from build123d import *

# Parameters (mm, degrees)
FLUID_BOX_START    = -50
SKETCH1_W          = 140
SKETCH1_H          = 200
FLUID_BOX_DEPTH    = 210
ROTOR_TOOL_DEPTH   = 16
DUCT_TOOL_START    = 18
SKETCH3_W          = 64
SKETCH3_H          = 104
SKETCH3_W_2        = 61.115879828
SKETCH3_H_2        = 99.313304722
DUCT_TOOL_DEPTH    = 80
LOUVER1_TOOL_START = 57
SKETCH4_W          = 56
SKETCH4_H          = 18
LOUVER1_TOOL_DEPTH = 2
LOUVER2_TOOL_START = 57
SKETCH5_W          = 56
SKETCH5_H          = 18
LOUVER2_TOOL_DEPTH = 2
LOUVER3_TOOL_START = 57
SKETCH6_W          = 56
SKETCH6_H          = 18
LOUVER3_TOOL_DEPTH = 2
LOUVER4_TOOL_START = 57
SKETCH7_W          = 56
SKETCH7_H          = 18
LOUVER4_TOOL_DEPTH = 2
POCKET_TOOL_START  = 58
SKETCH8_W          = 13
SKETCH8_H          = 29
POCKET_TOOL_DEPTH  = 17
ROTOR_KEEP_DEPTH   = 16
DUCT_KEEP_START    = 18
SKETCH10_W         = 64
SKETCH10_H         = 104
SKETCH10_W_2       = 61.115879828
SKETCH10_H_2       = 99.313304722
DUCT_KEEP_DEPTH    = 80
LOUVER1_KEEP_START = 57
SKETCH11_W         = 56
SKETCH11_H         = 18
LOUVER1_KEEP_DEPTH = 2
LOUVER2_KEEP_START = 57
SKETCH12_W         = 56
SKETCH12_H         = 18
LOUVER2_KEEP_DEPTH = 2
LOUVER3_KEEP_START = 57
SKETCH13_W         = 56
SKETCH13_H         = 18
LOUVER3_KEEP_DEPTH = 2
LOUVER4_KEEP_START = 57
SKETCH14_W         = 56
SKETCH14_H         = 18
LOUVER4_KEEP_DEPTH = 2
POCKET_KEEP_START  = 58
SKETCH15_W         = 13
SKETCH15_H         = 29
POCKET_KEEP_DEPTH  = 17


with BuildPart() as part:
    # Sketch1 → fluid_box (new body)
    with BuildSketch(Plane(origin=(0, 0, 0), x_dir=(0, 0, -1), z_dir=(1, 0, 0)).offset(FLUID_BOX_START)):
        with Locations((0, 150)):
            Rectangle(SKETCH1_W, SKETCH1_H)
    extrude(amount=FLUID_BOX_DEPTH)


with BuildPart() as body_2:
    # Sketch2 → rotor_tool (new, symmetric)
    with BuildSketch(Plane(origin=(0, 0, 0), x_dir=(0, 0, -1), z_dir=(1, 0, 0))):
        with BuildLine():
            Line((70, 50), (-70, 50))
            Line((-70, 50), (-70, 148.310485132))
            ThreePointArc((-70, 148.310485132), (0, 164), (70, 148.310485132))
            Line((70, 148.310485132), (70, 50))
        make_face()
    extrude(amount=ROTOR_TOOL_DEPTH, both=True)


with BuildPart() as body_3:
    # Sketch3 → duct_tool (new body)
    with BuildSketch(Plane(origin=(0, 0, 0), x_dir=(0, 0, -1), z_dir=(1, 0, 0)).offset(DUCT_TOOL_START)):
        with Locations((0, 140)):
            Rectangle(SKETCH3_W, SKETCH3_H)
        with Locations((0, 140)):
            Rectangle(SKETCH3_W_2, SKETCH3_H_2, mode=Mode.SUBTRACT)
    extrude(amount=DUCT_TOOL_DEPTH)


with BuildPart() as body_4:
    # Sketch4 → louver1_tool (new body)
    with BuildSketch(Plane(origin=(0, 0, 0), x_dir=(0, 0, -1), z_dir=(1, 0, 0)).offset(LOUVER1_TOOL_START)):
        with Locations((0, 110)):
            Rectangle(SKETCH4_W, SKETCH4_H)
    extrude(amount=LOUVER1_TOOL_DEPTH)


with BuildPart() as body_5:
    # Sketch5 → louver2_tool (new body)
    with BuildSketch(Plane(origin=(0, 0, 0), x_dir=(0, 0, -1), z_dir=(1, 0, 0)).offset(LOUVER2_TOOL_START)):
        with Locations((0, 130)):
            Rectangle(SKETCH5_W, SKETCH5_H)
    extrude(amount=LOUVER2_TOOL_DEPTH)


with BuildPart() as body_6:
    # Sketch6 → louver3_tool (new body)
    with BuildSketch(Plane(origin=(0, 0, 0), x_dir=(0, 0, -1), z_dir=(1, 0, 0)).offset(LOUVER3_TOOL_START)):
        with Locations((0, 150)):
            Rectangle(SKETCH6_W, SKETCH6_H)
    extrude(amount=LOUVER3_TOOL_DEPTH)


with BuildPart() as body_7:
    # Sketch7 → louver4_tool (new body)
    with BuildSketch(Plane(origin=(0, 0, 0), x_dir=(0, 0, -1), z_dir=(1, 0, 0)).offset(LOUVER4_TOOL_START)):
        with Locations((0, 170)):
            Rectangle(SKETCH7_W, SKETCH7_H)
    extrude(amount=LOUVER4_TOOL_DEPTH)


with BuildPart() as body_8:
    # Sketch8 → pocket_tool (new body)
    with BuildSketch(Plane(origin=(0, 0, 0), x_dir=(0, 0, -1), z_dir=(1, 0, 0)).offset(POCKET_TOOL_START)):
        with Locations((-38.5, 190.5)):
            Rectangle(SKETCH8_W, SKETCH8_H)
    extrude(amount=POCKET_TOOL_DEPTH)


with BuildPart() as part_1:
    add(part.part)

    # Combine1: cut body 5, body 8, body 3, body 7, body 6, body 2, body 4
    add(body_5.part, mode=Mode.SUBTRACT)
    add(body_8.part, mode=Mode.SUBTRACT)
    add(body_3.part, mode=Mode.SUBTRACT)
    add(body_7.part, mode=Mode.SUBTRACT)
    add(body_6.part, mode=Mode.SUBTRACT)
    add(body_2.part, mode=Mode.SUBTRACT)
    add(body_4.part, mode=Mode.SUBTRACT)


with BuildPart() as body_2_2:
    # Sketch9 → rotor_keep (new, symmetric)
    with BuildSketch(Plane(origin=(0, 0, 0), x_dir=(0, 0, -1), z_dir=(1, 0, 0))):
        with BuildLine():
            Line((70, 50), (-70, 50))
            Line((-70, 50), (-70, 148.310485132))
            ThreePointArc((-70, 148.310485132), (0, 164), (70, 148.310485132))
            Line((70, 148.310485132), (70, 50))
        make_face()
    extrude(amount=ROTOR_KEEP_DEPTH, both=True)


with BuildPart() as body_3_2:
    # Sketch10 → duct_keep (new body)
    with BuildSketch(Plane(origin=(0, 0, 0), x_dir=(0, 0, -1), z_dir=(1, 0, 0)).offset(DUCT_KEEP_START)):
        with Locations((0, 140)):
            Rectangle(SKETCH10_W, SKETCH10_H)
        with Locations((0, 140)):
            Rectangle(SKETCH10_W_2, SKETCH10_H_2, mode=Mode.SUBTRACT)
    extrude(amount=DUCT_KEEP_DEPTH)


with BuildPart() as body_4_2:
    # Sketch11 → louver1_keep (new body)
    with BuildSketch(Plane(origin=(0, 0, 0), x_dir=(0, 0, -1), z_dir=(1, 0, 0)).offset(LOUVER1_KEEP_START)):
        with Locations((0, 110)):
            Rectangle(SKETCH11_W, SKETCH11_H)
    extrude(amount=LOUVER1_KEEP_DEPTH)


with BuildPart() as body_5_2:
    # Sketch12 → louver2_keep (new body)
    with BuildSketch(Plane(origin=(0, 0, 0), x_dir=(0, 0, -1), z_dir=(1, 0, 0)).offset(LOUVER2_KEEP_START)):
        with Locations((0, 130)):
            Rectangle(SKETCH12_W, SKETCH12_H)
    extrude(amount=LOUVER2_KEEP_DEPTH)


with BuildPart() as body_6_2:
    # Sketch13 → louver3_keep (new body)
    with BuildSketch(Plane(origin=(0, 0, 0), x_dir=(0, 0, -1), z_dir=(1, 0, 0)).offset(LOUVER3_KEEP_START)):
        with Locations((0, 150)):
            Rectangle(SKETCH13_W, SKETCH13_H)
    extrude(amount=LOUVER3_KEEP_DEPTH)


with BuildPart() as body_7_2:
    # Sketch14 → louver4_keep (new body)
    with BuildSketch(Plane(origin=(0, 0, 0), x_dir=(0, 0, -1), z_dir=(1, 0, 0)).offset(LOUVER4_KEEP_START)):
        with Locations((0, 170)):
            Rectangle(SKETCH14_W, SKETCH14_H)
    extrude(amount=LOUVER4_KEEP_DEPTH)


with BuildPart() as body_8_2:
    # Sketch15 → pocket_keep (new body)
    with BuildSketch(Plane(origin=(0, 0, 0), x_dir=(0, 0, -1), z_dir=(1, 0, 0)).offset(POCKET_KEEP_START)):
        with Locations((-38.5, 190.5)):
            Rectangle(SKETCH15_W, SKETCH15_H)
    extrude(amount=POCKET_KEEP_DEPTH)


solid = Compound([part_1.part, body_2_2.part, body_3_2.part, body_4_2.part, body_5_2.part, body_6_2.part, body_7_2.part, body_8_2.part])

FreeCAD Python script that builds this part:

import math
import FreeCAD as App
import Part
import Sketcher

doc = App.newDocument("Part")
params = doc.addObject("Spreadsheet::Sheet", "Params")
for row, (alias, value) in enumerate([
    ("sketch1_width", "200 mm"),
    ("sketch1_height", "140 mm"),
    ("pad1_length", "210 mm"),
    ("sketch2_radius", "164 mm"),
    ("sketch2_height", "140 mm"),
    ("pad2_length", "32 mm"),
    ("sketch3_width", "104 mm"),
    ("sketch3_height", "64 mm"),
    ("pad3_length", "80 mm"),
    ("sketch4_width", "18 mm"),
    ("sketch4_height", "56 mm"),
    ("pad4_length", "2 mm"),
    ("sketch5_width", "18 mm"),
    ("sketch5_height", "56 mm"),
    ("pad5_length", "2 mm"),
    ("sketch6_width", "18 mm"),
    ("sketch6_height", "56 mm"),
    ("pad6_length", "2 mm"),
    ("sketch7_width", "18 mm"),
    ("sketch7_height", "56 mm"),
    ("pad7_length", "2 mm"),
    ("sketch8_width", "29 mm"),
    ("sketch8_height", "13 mm"),
    ("pad8_length", "17 mm"),
    ("sketch9_radius", "164 mm"),
    ("sketch9_height", "140 mm"),
    ("pad9_length", "32 mm"),
    ("sketch10_width", "104 mm"),
    ("sketch10_height", "64 mm"),
    ("pad10_length", "80 mm"),
    ("sketch11_width", "18 mm"),
    ("sketch11_height", "56 mm"),
    ("pad11_length", "2 mm"),
    ("sketch12_width", "18 mm"),
    ("sketch12_height", "56 mm"),
    ("pad12_length", "2 mm"),
    ("sketch13_width", "18 mm"),
    ("sketch13_height", "56 mm"),
    ("pad13_length", "2 mm"),
    ("sketch14_width", "18 mm"),
    ("sketch14_height", "56 mm"),
    ("pad14_length", "2 mm"),
    ("sketch15_width", "29 mm"),
    ("sketch15_height", "13 mm"),
    ("pad15_length", "17 mm"),
], start=1):
    params.set(f"A{row}", alias)
    params.set(f"B{row}", "=" + value)
    params.setAlias(f"B{row}", alias)

body = doc.addObject("PartDesign::Body", "Body")

# Sketch on YZ plane
sketch1 = doc.addObject("Sketcher::SketchObject", "Sketch")
body.addObject(sketch1)
sketch1.AttachmentSupport = (doc.YZ_Plane, [""])
sketch1.MapMode = "FlatFace"
sketch1.AttachmentOffset = App.Placement(App.Vector(0, 0, -50), App.Rotation())
sketch1.addGeometry([
    Part.LineSegment(App.Vector(250, 70, 0), App.Vector(50, 70, 0)),
    Part.LineSegment(App.Vector(50, 70, 0), App.Vector(50, -70, 0)),
    Part.LineSegment(App.Vector(50, -70, 0), App.Vector(250, -70, 0)),
    Part.LineSegment(App.Vector(250, -70, 0), App.Vector(250, 70, 0)),
], False)
sketch1.addConstraint([
    Sketcher.Constraint("Coincident", 0, 2, 1, 1),
    Sketcher.Constraint("Coincident", 1, 2, 2, 1),
    Sketcher.Constraint("Coincident", 2, 2, 3, 1),
    Sketcher.Constraint("Coincident", 3, 2, 0, 1),
    Sketcher.Constraint("Horizontal", 0),
    Sketcher.Constraint("Vertical", 1),
    Sketcher.Constraint("Horizontal", 2),
    Sketcher.Constraint("Vertical", 3),
    Sketcher.Constraint("DistanceX", 0, 2, 0, 1, 200.0),
    Sketcher.Constraint("DistanceY", 1, 2, 1, 1, 140.0),
    Sketcher.Constraint("DistanceX", -1, 1, 0, 2, 50.0),
    Sketcher.Constraint("DistanceY", -1, 1, 0, 2, 70.0),
])
sketch1.setExpression("Constraints[8]", "Params.sketch1_width")
sketch1.setExpression("Constraints[9]", "Params.sketch1_height")
pad1 = doc.addObject("PartDesign::Pad", "Pad")
body.addObject(pad1)
pad1.Profile = sketch1
pad1.setExpression("Length", "Params.pad1_length")
body2 = doc.addObject("PartDesign::Body", "Body001")

# Sketch on YZ plane
sketch2 = doc.addObject("Sketcher::SketchObject", "Sketch001")
body2.addObject(sketch2)
sketch2.AttachmentSupport = (doc.getObject("YZ_Plane001"), [""])
sketch2.MapMode = "FlatFace"
sketch2.addGeometry([
    Part.LineSegment(App.Vector(50, 70, 0), App.Vector(50, -70, 0)),
    Part.LineSegment(App.Vector(50, -70, 0), App.Vector(148.310485, -70, 0)),
    Part.ArcOfCircle(Part.Circle(App.Vector(0, 0, 0), App.Vector(0, 0, 1), 164), math.radians(-25.266505), math.radians(25.266505)),
    Part.LineSegment(App.Vector(148.310485, 70, 0), App.Vector(50, 70, 0)),
], False)
sketch2.addConstraint([
    Sketcher.Constraint("Coincident", 0, 2, 1, 1),
    Sketcher.Constraint("Coincident", 1, 2, 2, 1),
    Sketcher.Constraint("Coincident", 2, 2, 3, 1),
    Sketcher.Constraint("Coincident", 3, 2, 0, 1),
    Sketcher.Constraint("Vertical", 0),
    Sketcher.Constraint("Horizontal", 1),
    Sketcher.Constraint("Horizontal", 3),
    Sketcher.Constraint("Coincident", 2, 3, -1, 1),
    Sketcher.Constraint("Vertical", 1, 2, 2, 2),
    Sketcher.Constraint("Radius", 2, 164.0),
    Sketcher.Constraint("DistanceY", 0, 2, 0, 1, 140.0),
    Sketcher.Constraint("DistanceX", -1, 1, 0, 2, 50.0),
])
sketch2.setExpression("Constraints[9]", "Params.sketch2_radius")
sketch2.setExpression("Constraints[10]", "Params.sketch2_height")
pad2 = doc.addObject("PartDesign::Pad", "Pad001")
body2.addObject(pad2)
pad2.Profile = sketch2
pad2.setExpression("Length", "Params.pad2_length")
pad2.Midplane = True
body3 = doc.addObject("PartDesign::Body", "Body002")

# Sketch on YZ plane
sketch3 = doc.addObject("Sketcher::SketchObject", "Sketch002")
body3.addObject(sketch3)
sketch3.AttachmentSupport = (doc.getObject("YZ_Plane002"), [""])
sketch3.MapMode = "FlatFace"
sketch3.AttachmentOffset = App.Placement(App.Vector(0, 0, 18), App.Rotation())
sketch3.addGeometry([
    Part.LineSegment(App.Vector(192, 32, 0), App.Vector(88, 32, 0)),  # 0
    Part.LineSegment(App.Vector(88, 32, 0), App.Vector(88, -32, 0)),  # 1
    Part.LineSegment(App.Vector(88, -32, 0), App.Vector(192, -32, 0)),  # 2
    Part.LineSegment(App.Vector(192, -32, 0), App.Vector(192, 32, 0)),  # 3
    Part.LineSegment(App.Vector(90.343348, -30.55794, 0), App.Vector(90.343348, 30.55794, 0)),  # 4
    Part.LineSegment(App.Vector(90.343348, 30.55794, 0), App.Vector(189.656652, 30.55794, 0)),  # 5
    Part.LineSegment(App.Vector(189.656652, 30.55794, 0), App.Vector(189.656652, -30.55794, 0)),  # 6
    Part.LineSegment(App.Vector(189.656652, -30.55794, 0), App.Vector(90.343348, -30.55794, 0)),  # 7
], False)
sketch3.addConstraint([
    Sketcher.Constraint("Coincident", 0, 2, 1, 1),
    Sketcher.Constraint("Coincident", 1, 2, 2, 1),
    Sketcher.Constraint("Coincident", 2, 2, 3, 1),
    Sketcher.Constraint("Coincident", 3, 2, 0, 1),
    Sketcher.Constraint("Coincident", 4, 2, 5, 1),
    Sketcher.Constraint("Coincident", 5, 2, 6, 1),
    Sketcher.Constraint("Coincident", 6, 2, 7, 1),
    Sketcher.Constraint("Coincident", 7, 2, 4, 1),
    Sketcher.Constraint("Horizontal", 0),
    Sketcher.Constraint("Vertical", 1),
    Sketcher.Constraint("Horizontal", 2),
    Sketcher.Constraint("Vertical", 3),
    Sketcher.Constraint("Vertical", 4),
    Sketcher.Constraint("Horizontal", 5),
    Sketcher.Constraint("Vertical", 6),
    Sketcher.Constraint("Horizontal", 7),
    Sketcher.Constraint("DistanceX", 0, 2, 0, 1, 104.0),
    Sketcher.Constraint("DistanceY", 1, 2, 1, 1, 64.0),
    Sketcher.Constraint("DistanceX", -1, 1, 0, 2, 88.0),
    Sketcher.Constraint("DistanceY", -1, 1, 0, 2, 32.0),
    Sketcher.Constraint("DistanceY", 4, 1, 4, 2, 61.11588),
    Sketcher.Constraint("DistanceX", 5, 1, 5, 2, 99.313305),
    Sketcher.Constraint("DistanceY", -1, 1, 4, 2, 30.55794),
    Sketcher.Constraint("DistanceX", -1, 1, 4, 2, 90.343348),
])
sketch3.setExpression("Constraints[16]", "Params.sketch3_width")
sketch3.setExpression("Constraints[17]", "Params.sketch3_height")
pad3 = doc.addObject("PartDesign::Pad", "Pad002")
body3.addObject(pad3)
pad3.Profile = sketch3
pad3.setExpression("Length", "Params.pad3_length")
body4 = doc.addObject("PartDesign::Body", "Body003")

# Sketch on YZ plane
sketch4 = doc.addObject("Sketcher::SketchObject", "Sketch003")
body4.addObject(sketch4)
sketch4.AttachmentSupport = (doc.getObject("YZ_Plane003"), [""])
sketch4.MapMode = "FlatFace"
sketch4.AttachmentOffset = App.Placement(App.Vector(0, 0, 57), App.Rotation())
sketch4.addGeometry([
    Part.LineSegment(App.Vector(119, 28, 0), App.Vector(101, 28, 0)),
    Part.LineSegment(App.Vector(101, 28, 0), App.Vector(101, -28, 0)),
    Part.LineSegment(App.Vector(101, -28, 0), App.Vector(119, -28, 0)),
    Part.LineSegment(App.Vector(119, -28, 0), App.Vector(119, 28, 0)),
], False)
sketch4.addConstraint([
    Sketcher.Constraint("Coincident", 0, 2, 1, 1),
    Sketcher.Constraint("Coincident", 1, 2, 2, 1),
    Sketcher.Constraint("Coincident", 2, 2, 3, 1),
    Sketcher.Constraint("Coincident", 3, 2, 0, 1),
    Sketcher.Constraint("Horizontal", 0),
    Sketcher.Constraint("Vertical", 1),
    Sketcher.Constraint("Horizontal", 2),
    Sketcher.Constraint("Vertical", 3),
    Sketcher.Constraint("DistanceX", 0, 2, 0, 1, 18.0),
    Sketcher.Constraint("DistanceY", 1, 2, 1, 1, 56.0),
    Sketcher.Constraint("DistanceX", -1, 1, 0, 2, 101.0),
    Sketcher.Constraint("DistanceY", -1, 1, 0, 2, 28.0),
])
sketch4.setExpression("Constraints[8]", "Params.sketch4_width")
sketch4.setExpression("Constraints[9]", "Params.sketch4_height")
pad4 = doc.addObject("PartDesign::Pad", "Pad003")
body4.addObject(pad4)
pad4.Profile = sketch4
pad4.setExpression("Length", "Params.pad4_length")
body5 = doc.addObject("PartDesign::Body", "Body004")

# Sketch on YZ plane
sketch5 = doc.addObject("Sketcher::SketchObject", "Sketch004")
body5.addObject(sketch5)
sketch5.AttachmentSupport = (doc.getObject("YZ_Plane004"), [""])
sketch5.MapMode = "FlatFace"
sketch5.AttachmentOffset = App.Placement(App.Vector(0, 0, 57), App.Rotation())
sketch5.addGeometry([
    Part.LineSegment(App.Vector(139, 28, 0), App.Vector(121, 28, 0)),
    Part.LineSegment(App.Vector(121, 28, 0), App.Vector(121, -28, 0)),
    Part.LineSegment(App.Vector(121, -28, 0), App.Vector(139, -28, 0)),
    Part.LineSegment(App.Vector(139, -28, 0), App.Vector(139, 28, 0)),
], False)
sketch5.addConstraint([
    Sketcher.Constraint("Coincident", 0, 2, 1, 1),
    Sketcher.Constraint("Coincident", 1, 2, 2, 1),
    Sketcher.Constraint("Coincident", 2, 2, 3, 1),
    Sketcher.Constraint("Coincident", 3, 2, 0, 1),
    Sketcher.Constraint("Horizontal", 0),
    Sketcher.Constraint("Vertical", 1),
    Sketcher.Constraint("Horizontal", 2),
    Sketcher.Constraint("Vertical", 3),
    Sketcher.Constraint("DistanceX", 0, 2, 0, 1, 18.0),
    Sketcher.Constraint("DistanceY", 1, 2, 1, 1, 56.0),
    Sketcher.Constraint("DistanceX", -1, 1, 0, 2, 121.0),
    Sketcher.Constraint("DistanceY", -1, 1, 0, 2, 28.0),
])
sketch5.setExpression("Constraints[8]", "Params.sketch5_width")
sketch5.setExpression("Constraints[9]", "Params.sketch5_height")
pad5 = doc.addObject("PartDesign::Pad", "Pad004")
body5.addObject(pad5)
pad5.Profile = sketch5
pad5.setExpression("Length", "Params.pad5_length")
body6 = doc.addObject("PartDesign::Body", "Body005")

# Sketch on YZ plane
sketch6 = doc.addObject("Sketcher::SketchObject", "Sketch005")
body6.addObject(sketch6)
sketch6.AttachmentSupport = (doc.getObject("YZ_Plane005"), [""])
sketch6.MapMode = "FlatFace"
sketch6.AttachmentOffset = App.Placement(App.Vector(0, 0, 57), App.Rotation())
sketch6.addGeometry([
    Part.LineSegment(App.Vector(159, 28, 0), App.Vector(141, 28, 0)),
    Part.LineSegment(App.Vector(141, 28, 0), App.Vector(141, -28, 0)),
    Part.LineSegment(App.Vector(141, -28, 0), App.Vector(159, -28, 0)),
    Part.LineSegment(App.Vector(159, -28, 0), App.Vector(159, 28, 0)),
], False)
sketch6.addConstraint([
    Sketcher.Constraint("Coincident", 0, 2, 1, 1),
    Sketcher.Constraint("Coincident", 1, 2, 2, 1),
    Sketcher.Constraint("Coincident", 2, 2, 3, 1),
    Sketcher.Constraint("Coincident", 3, 2, 0, 1),
    Sketcher.Constraint("Horizontal", 0),
    Sketcher.Constraint("Vertical", 1),
    Sketcher.Constraint("Horizontal", 2),
    Sketcher.Constraint("Vertical", 3),
    Sketcher.Constraint("DistanceX", 0, 2, 0, 1, 18.0),
    Sketcher.Constraint("DistanceY", 1, 2, 1, 1, 56.0),
    Sketcher.Constraint("DistanceX", -1, 1, 0, 2, 141.0),
    Sketcher.Constraint("DistanceY", -1, 1, 0, 2, 28.0),
])
sketch6.setExpression("Constraints[8]", "Params.sketch6_width")
sketch6.setExpression("Constraints[9]", "Params.sketch6_height")
pad6 = doc.addObject("PartDesign::Pad", "Pad005")
body6.addObject(pad6)
pad6.Profile = sketch6
pad6.setExpression("Length", "Params.pad6_length")
body7 = doc.addObject("PartDesign::Body", "Body006")

# Sketch on YZ plane
sketch7 = doc.addObject("Sketcher::SketchObject", "Sketch006")
body7.addObject(sketch7)
sketch7.AttachmentSupport = (doc.getObject("YZ_Plane006"), [""])
sketch7.MapMode = "FlatFace"
sketch7.AttachmentOffset = App.Placement(App.Vector(0, 0, 57), App.Rotation())
sketch7.addGeometry([
    Part.LineSegment(App.Vector(179, 28, 0), App.Vector(161, 28, 0)),
    Part.LineSegment(App.Vector(161, 28, 0), App.Vector(161, -28, 0)),
    Part.LineSegment(App.Vector(161, -28, 0), App.Vector(179, -28, 0)),
    Part.LineSegment(App.Vector(179, -28, 0), App.Vector(179, 28, 0)),
], False)
sketch7.addConstraint([
    Sketcher.Constraint("Coincident", 0, 2, 1, 1),
    Sketcher.Constraint("Coincident", 1, 2, 2, 1),
    Sketcher.Constraint("Coincident", 2, 2, 3, 1),
    Sketcher.Constraint("Coincident", 3, 2, 0, 1),
    Sketcher.Constraint("Horizontal", 0),
    Sketcher.Constraint("Vertical", 1),
    Sketcher.Constraint("Horizontal", 2),
    Sketcher.Constraint("Vertical", 3),
    Sketcher.Constraint("DistanceX", 0, 2, 0, 1, 18.0),
    Sketcher.Constraint("DistanceY", 1, 2, 1, 1, 56.0),
    Sketcher.Constraint("DistanceX", -1, 1, 0, 2, 161.0),
    Sketcher.Constraint("DistanceY", -1, 1, 0, 2, 28.0),
])
sketch7.setExpression("Constraints[8]", "Params.sketch7_width")
sketch7.setExpression("Constraints[9]", "Params.sketch7_height")
pad7 = doc.addObject("PartDesign::Pad", "Pad006")
body7.addObject(pad7)
pad7.Profile = sketch7
pad7.setExpression("Length", "Params.pad7_length")
body8 = doc.addObject("PartDesign::Body", "Body007")

# Sketch on YZ plane
sketch8 = doc.addObject("Sketcher::SketchObject", "Sketch007")
body8.addObject(sketch8)
sketch8.AttachmentSupport = (doc.getObject("YZ_Plane007"), [""])
sketch8.MapMode = "FlatFace"
sketch8.AttachmentOffset = App.Placement(App.Vector(0, 0, 58), App.Rotation())
sketch8.addGeometry([
    Part.LineSegment(App.Vector(205, 45, 0), App.Vector(176, 45, 0)),
    Part.LineSegment(App.Vector(176, 45, 0), App.Vector(176, 32, 0)),
    Part.LineSegment(App.Vector(176, 32, 0), App.Vector(205, 32, 0)),
    Part.LineSegment(App.Vector(205, 32, 0), App.Vector(205, 45, 0)),
], False)
sketch8.addConstraint([
    Sketcher.Constraint("Coincident", 0, 2, 1, 1),
    Sketcher.Constraint("Coincident", 1, 2, 2, 1),
    Sketcher.Constraint("Coincident", 2, 2, 3, 1),
    Sketcher.Constraint("Coincident", 3, 2, 0, 1),
    Sketcher.Constraint("Horizontal", 0),
    Sketcher.Constraint("Vertical", 1),
    Sketcher.Constraint("Horizontal", 2),
    Sketcher.Constraint("Vertical", 3),
    Sketcher.Constraint("DistanceX", 0, 2, 0, 1, 29.0),
    Sketcher.Constraint("DistanceY", 1, 2, 1, 1, 13.0),
    Sketcher.Constraint("DistanceX", -1, 1, 0, 2, 176.0),
    Sketcher.Constraint("DistanceY", -1, 1, 0, 2, 45.0),
])
sketch8.setExpression("Constraints[8]", "Params.sketch8_width")
sketch8.setExpression("Constraints[9]", "Params.sketch8_height")
pad8 = doc.addObject("PartDesign::Pad", "Pad007")
body8.addObject(pad8)
pad8.Profile = sketch8
pad8.setExpression("Length", "Params.pad8_length")
doc.recompute()

boolean = doc.addObject("PartDesign::Boolean", "Boolean")
body.addObject(boolean)
boolean.Type = "Cut"
boolean.addObjects([body5])
doc.recompute()

boolean2 = doc.addObject("PartDesign::Boolean", "Boolean001")
body.addObject(boolean2)
boolean2.Type = "Cut"
boolean2.addObjects([body8])
doc.recompute()

boolean3 = doc.addObject("PartDesign::Boolean", "Boolean002")
body.addObject(boolean3)
boolean3.Type = "Cut"
boolean3.addObjects([body3])
doc.recompute()

boolean4 = doc.addObject("PartDesign::Boolean", "Boolean003")
body.addObject(boolean4)
boolean4.Type = "Cut"
boolean4.addObjects([body7])
doc.recompute()

boolean5 = doc.addObject("PartDesign::Boolean", "Boolean004")
body.addObject(boolean5)
boolean5.Type = "Cut"
boolean5.addObjects([body6])
doc.recompute()

boolean6 = doc.addObject("PartDesign::Boolean", "Boolean005")
body.addObject(boolean6)
boolean6.Type = "Cut"
boolean6.addObjects([body2])
doc.recompute()

boolean7 = doc.addObject("PartDesign::Boolean", "Boolean006")
body.addObject(boolean7)
boolean7.Type = "Cut"
boolean7.addObjects([body4])
body9 = doc.addObject("PartDesign::Body", "Body008")

# Sketch on YZ plane
sketch9 = doc.addObject("Sketcher::SketchObject", "Sketch008")
body9.addObject(sketch9)
sketch9.AttachmentSupport = (doc.getObject("YZ_Plane008"), [""])
sketch9.MapMode = "FlatFace"
sketch9.addGeometry([
    Part.LineSegment(App.Vector(50, 70, 0), App.Vector(50, -70, 0)),
    Part.LineSegment(App.Vector(50, -70, 0), App.Vector(148.310485, -70, 0)),
    Part.ArcOfCircle(Part.Circle(App.Vector(0, 0, 0), App.Vector(0, 0, 1), 164), math.radians(-25.266505), math.radians(25.266505)),
    Part.LineSegment(App.Vector(148.310485, 70, 0), App.Vector(50, 70, 0)),
], False)
sketch9.addConstraint([
    Sketcher.Constraint("Coincident", 0, 2, 1, 1),
    Sketcher.Constraint("Coincident", 1, 2, 2, 1),
    Sketcher.Constraint("Coincident", 2, 2, 3, 1),
    Sketcher.Constraint("Coincident", 3, 2, 0, 1),
    Sketcher.Constraint("Vertical", 0),
    Sketcher.Constraint("Horizontal", 1),
    Sketcher.Constraint("Horizontal", 3),
    Sketcher.Constraint("Coincident", 2, 3, -1, 1),
    Sketcher.Constraint("Vertical", 1, 2, 2, 2),
    Sketcher.Constraint("Radius", 2, 164.0),
    Sketcher.Constraint("DistanceY", 0, 2, 0, 1, 140.0),
    Sketcher.Constraint("DistanceX", -1, 1, 0, 2, 50.0),
])
sketch9.setExpression("Constraints[9]", "Params.sketch9_radius")
sketch9.setExpression("Constraints[10]", "Params.sketch9_height")
pad9 = doc.addObject("PartDesign::Pad", "Pad008")
body9.addObject(pad9)
pad9.Profile = sketch9
pad9.setExpression("Length", "Params.pad9_length")
pad9.Midplane = True
body10 = doc.addObject("PartDesign::Body", "Body009")

# Sketch on YZ plane
sketch10 = doc.addObject("Sketcher::SketchObject", "Sketch009")
body10.addObject(sketch10)
sketch10.AttachmentSupport = (doc.getObject("YZ_Plane009"), [""])
sketch10.MapMode = "FlatFace"
sketch10.AttachmentOffset = App.Placement(App.Vector(0, 0, 18), App.Rotation())
sketch10.addGeometry([
    Part.LineSegment(App.Vector(192, 32, 0), App.Vector(88, 32, 0)),  # 0
    Part.LineSegment(App.Vector(88, 32, 0), App.Vector(88, -32, 0)),  # 1
    Part.LineSegment(App.Vector(88, -32, 0), App.Vector(192, -32, 0)),  # 2
    Part.LineSegment(App.Vector(192, -32, 0), App.Vector(192, 32, 0)),  # 3
    Part.LineSegment(App.Vector(90.343348, -30.55794, 0), App.Vector(90.343348, 30.55794, 0)),  # 4
    Part.LineSegment(App.Vector(90.343348, 30.55794, 0), App.Vector(189.656652, 30.55794, 0)),  # 5
    Part.LineSegment(App.Vector(189.656652, 30.55794, 0), App.Vector(189.656652, -30.55794, 0)),  # 6
    Part.LineSegment(App.Vector(189.656652, -30.55794, 0), App.Vector(90.343348, -30.55794, 0)),  # 7
], False)
sketch10.addConstraint([
    Sketcher.Constraint("Coincident", 0, 2, 1, 1),
    Sketcher.Constraint("Coincident", 1, 2, 2, 1),
    Sketcher.Constraint("Coincident", 2, 2, 3, 1),
    Sketcher.Constraint("Coincident", 3, 2, 0, 1),
    Sketcher.Constraint("Coincident", 4, 2, 5, 1),
    Sketcher.Constraint("Coincident", 5, 2, 6, 1),
    Sketcher.Constraint("Coincident", 6, 2, 7, 1),
    Sketcher.Constraint("Coincident", 7, 2, 4, 1),
    Sketcher.Constraint("Horizontal", 0),
    Sketcher.Constraint("Vertical", 1),
    Sketcher.Constraint("Horizontal", 2),
    Sketcher.Constraint("Vertical", 3),
    Sketcher.Constraint("Vertical", 4),
    Sketcher.Constraint("Horizontal", 5),
    Sketcher.Constraint("Vertical", 6),
    Sketcher.Constraint("Horizontal", 7),
    Sketcher.Constraint("DistanceX", 0, 2, 0, 1, 104.0),
    Sketcher.Constraint("DistanceY", 1, 2, 1, 1, 64.0),
    Sketcher.Constraint("DistanceX", -1, 1, 0, 2, 88.0),
    Sketcher.Constraint("DistanceY", -1, 1, 0, 2, 32.0),
    Sketcher.Constraint("DistanceY", 4, 1, 4, 2, 61.11588),
    Sketcher.Constraint("DistanceX", 5, 1, 5, 2, 99.313305),
    Sketcher.Constraint("DistanceY", -1, 1, 4, 2, 30.55794),
    Sketcher.Constraint("DistanceX", -1, 1, 4, 2, 90.343348),
])
sketch10.setExpression("Constraints[16]", "Params.sketch10_width")
sketch10.setExpression("Constraints[17]", "Params.sketch10_height")
pad10 = doc.addObject("PartDesign::Pad", "Pad009")
body10.addObject(pad10)
pad10.Profile = sketch10
pad10.setExpression("Length", "Params.pad10_length")
body11 = doc.addObject("PartDesign::Body", "Body010")

# Sketch on YZ plane
sketch11 = doc.addObject("Sketcher::SketchObject", "Sketch010")
body11.addObject(sketch11)
sketch11.AttachmentSupport = (doc.getObject("YZ_Plane010"), [""])
sketch11.MapMode = "FlatFace"
sketch11.AttachmentOffset = App.Placement(App.Vector(0, 0, 57), App.Rotation())
sketch11.addGeometry([
    Part.LineSegment(App.Vector(119, 28, 0), App.Vector(101, 28, 0)),
    Part.LineSegment(App.Vector(101, 28, 0), App.Vector(101, -28, 0)),
    Part.LineSegment(App.Vector(101, -28, 0), App.Vector(119, -28, 0)),
    Part.LineSegment(App.Vector(119, -28, 0), App.Vector(119, 28, 0)),
], False)
sketch11.addConstraint([
    Sketcher.Constraint("Coincident", 0, 2, 1, 1),
    Sketcher.Constraint("Coincident", 1, 2, 2, 1),
    Sketcher.Constraint("Coincident", 2, 2, 3, 1),
    Sketcher.Constraint("Coincident", 3, 2, 0, 1),
    Sketcher.Constraint("Horizontal", 0),
    Sketcher.Constraint("Vertical", 1),
    Sketcher.Constraint("Horizontal", 2),
    Sketcher.Constraint("Vertical", 3),
    Sketcher.Constraint("DistanceX", 0, 2, 0, 1, 18.0),
    Sketcher.Constraint("DistanceY", 1, 2, 1, 1, 56.0),
    Sketcher.Constraint("DistanceX", -1, 1, 0, 2, 101.0),
    Sketcher.Constraint("DistanceY", -1, 1, 0, 2, 28.0),
])
sketch11.setExpression("Constraints[8]", "Params.sketch11_width")
sketch11.setExpression("Constraints[9]", "Params.sketch11_height")
pad11 = doc.addObject("PartDesign::Pad", "Pad010")
body11.addObject(pad11)
pad11.Profile = sketch11
pad11.setExpression("Length", "Params.pad11_length")
body12 = doc.addObject("PartDesign::Body", "Body011")

# Sketch on YZ plane
sketch12 = doc.addObject("Sketcher::SketchObject", "Sketch011")
body12.addObject(sketch12)
sketch12.AttachmentSupport = (doc.getObject("YZ_Plane011"), [""])
sketch12.MapMode = "FlatFace"
sketch12.AttachmentOffset = App.Placement(App.Vector(0, 0, 57), App.Rotation())
sketch12.addGeometry([
    Part.LineSegment(App.Vector(139, 28, 0), App.Vector(121, 28, 0)),
    Part.LineSegment(App.Vector(121, 28, 0), App.Vector(121, -28, 0)),
    Part.LineSegment(App.Vector(121, -28, 0), App.Vector(139, -28, 0)),
    Part.LineSegment(App.Vector(139, -28, 0), App.Vector(139, 28, 0)),
], False)
sketch12.addConstraint([
    Sketcher.Constraint("Coincident", 0, 2, 1, 1),
    Sketcher.Constraint("Coincident", 1, 2, 2, 1),
    Sketcher.Constraint("Coincident", 2, 2, 3, 1),
    Sketcher.Constraint("Coincident", 3, 2, 0, 1),
    Sketcher.Constraint("Horizontal", 0),
    Sketcher.Constraint("Vertical", 1),
    Sketcher.Constraint("Horizontal", 2),
    Sketcher.Constraint("Vertical", 3),
    Sketcher.Constraint("DistanceX", 0, 2, 0, 1, 18.0),
    Sketcher.Constraint("DistanceY", 1, 2, 1, 1, 56.0),
    Sketcher.Constraint("DistanceX", -1, 1, 0, 2, 121.0),
    Sketcher.Constraint("DistanceY", -1, 1, 0, 2, 28.0),
])
sketch12.setExpression("Constraints[8]", "Params.sketch12_width")
sketch12.setExpression("Constraints[9]", "Params.sketch12_height")
pad12 = doc.addObject("PartDesign::Pad", "Pad011")
body12.addObject(pad12)
pad12.Profile = sketch12
pad12.setExpression("Length", "Params.pad12_length")
body13 = doc.addObject("PartDesign::Body", "Body012")

# Sketch on YZ plane
sketch13 = doc.addObject("Sketcher::SketchObject", "Sketch012")
body13.addObject(sketch13)
sketch13.AttachmentSupport = (doc.getObject("YZ_Plane012"), [""])
sketch13.MapMode = "FlatFace"
sketch13.AttachmentOffset = App.Placement(App.Vector(0, 0, 57), App.Rotation())
sketch13.addGeometry([
    Part.LineSegment(App.Vector(159, 28, 0), App.Vector(141, 28, 0)),
    Part.LineSegment(App.Vector(141, 28, 0), App.Vector(141, -28, 0)),
    Part.LineSegment(App.Vector(141, -28, 0), App.Vector(159, -28, 0)),
    Part.LineSegment(App.Vector(159, -28, 0), App.Vector(159, 28, 0)),
], False)
sketch13.addConstraint([
    Sketcher.Constraint("Coincident", 0, 2, 1, 1),
    Sketcher.Constraint("Coincident", 1, 2, 2, 1),
    Sketcher.Constraint("Coincident", 2, 2, 3, 1),
    Sketcher.Constraint("Coincident", 3, 2, 0, 1),
    Sketcher.Constraint("Horizontal", 0),
    Sketcher.Constraint("Vertical", 1),
    Sketcher.Constraint("Horizontal", 2),
    Sketcher.Constraint("Vertical", 3),
    Sketcher.Constraint("DistanceX", 0, 2, 0, 1, 18.0),
    Sketcher.Constraint("DistanceY", 1, 2, 1, 1, 56.0),
    Sketcher.Constraint("DistanceX", -1, 1, 0, 2, 141.0),
    Sketcher.Constraint("DistanceY", -1, 1, 0, 2, 28.0),
])
sketch13.setExpression("Constraints[8]", "Params.sketch13_width")
sketch13.setExpression("Constraints[9]", "Params.sketch13_height")
pad13 = doc.addObject("PartDesign::Pad", "Pad012")
body13.addObject(pad13)
pad13.Profile = sketch13
pad13.setExpression("Length", "Params.pad13_length")
body14 = doc.addObject("PartDesign::Body", "Body013")

# Sketch on YZ plane
sketch14 = doc.addObject("Sketcher::SketchObject", "Sketch013")
body14.addObject(sketch14)
sketch14.AttachmentSupport = (doc.getObject("YZ_Plane013"), [""])
sketch14.MapMode = "FlatFace"
sketch14.AttachmentOffset = App.Placement(App.Vector(0, 0, 57), App.Rotation())
sketch14.addGeometry([
    Part.LineSegment(App.Vector(179, 28, 0), App.Vector(161, 28, 0)),
    Part.LineSegment(App.Vector(161, 28, 0), App.Vector(161, -28, 0)),
    Part.LineSegment(App.Vector(161, -28, 0), App.Vector(179, -28, 0)),
    Part.LineSegment(App.Vector(179, -28, 0), App.Vector(179, 28, 0)),
], False)
sketch14.addConstraint([
    Sketcher.Constraint("Coincident", 0, 2, 1, 1),
    Sketcher.Constraint("Coincident", 1, 2, 2, 1),
    Sketcher.Constraint("Coincident", 2, 2, 3, 1),
    Sketcher.Constraint("Coincident", 3, 2, 0, 1),
    Sketcher.Constraint("Horizontal", 0),
    Sketcher.Constraint("Vertical", 1),
    Sketcher.Constraint("Horizontal", 2),
    Sketcher.Constraint("Vertical", 3),
    Sketcher.Constraint("DistanceX", 0, 2, 0, 1, 18.0),
    Sketcher.Constraint("DistanceY", 1, 2, 1, 1, 56.0),
    Sketcher.Constraint("DistanceX", -1, 1, 0, 2, 161.0),
    Sketcher.Constraint("DistanceY", -1, 1, 0, 2, 28.0),
])
sketch14.setExpression("Constraints[8]", "Params.sketch14_width")
sketch14.setExpression("Constraints[9]", "Params.sketch14_height")
pad14 = doc.addObject("PartDesign::Pad", "Pad013")
body14.addObject(pad14)
pad14.Profile = sketch14
pad14.setExpression("Length", "Params.pad14_length")
body15 = doc.addObject("PartDesign::Body", "Body014")

# Sketch on YZ plane
sketch15 = doc.addObject("Sketcher::SketchObject", "Sketch014")
body15.addObject(sketch15)
sketch15.AttachmentSupport = (doc.getObject("YZ_Plane014"), [""])
sketch15.MapMode = "FlatFace"
sketch15.AttachmentOffset = App.Placement(App.Vector(0, 0, 58), App.Rotation())
sketch15.addGeometry([
    Part.LineSegment(App.Vector(205, 45, 0), App.Vector(176, 45, 0)),
    Part.LineSegment(App.Vector(176, 45, 0), App.Vector(176, 32, 0)),
    Part.LineSegment(App.Vector(176, 32, 0), App.Vector(205, 32, 0)),
    Part.LineSegment(App.Vector(205, 32, 0), App.Vector(205, 45, 0)),
], False)
sketch15.addConstraint([
    Sketcher.Constraint("Coincident", 0, 2, 1, 1),
    Sketcher.Constraint("Coincident", 1, 2, 2, 1),
    Sketcher.Constraint("Coincident", 2, 2, 3, 1),
    Sketcher.Constraint("Coincident", 3, 2, 0, 1),
    Sketcher.Constraint("Horizontal", 0),
    Sketcher.Constraint("Vertical", 1),
    Sketcher.Constraint("Horizontal", 2),
    Sketcher.Constraint("Vertical", 3),
    Sketcher.Constraint("DistanceX", 0, 2, 0, 1, 29.0),
    Sketcher.Constraint("DistanceY", 1, 2, 1, 1, 13.0),
    Sketcher.Constraint("DistanceX", -1, 1, 0, 2, 176.0),
    Sketcher.Constraint("DistanceY", -1, 1, 0, 2, 45.0),
])
sketch15.setExpression("Constraints[8]", "Params.sketch15_width")
sketch15.setExpression("Constraints[9]", "Params.sketch15_height")
pad15 = doc.addObject("PartDesign::Pad", "Pad014")
body15.addObject(pad15)
pad15.Profile = sketch15
pad15.setExpression("Length", "Params.pad15_length")

doc.recompute()
